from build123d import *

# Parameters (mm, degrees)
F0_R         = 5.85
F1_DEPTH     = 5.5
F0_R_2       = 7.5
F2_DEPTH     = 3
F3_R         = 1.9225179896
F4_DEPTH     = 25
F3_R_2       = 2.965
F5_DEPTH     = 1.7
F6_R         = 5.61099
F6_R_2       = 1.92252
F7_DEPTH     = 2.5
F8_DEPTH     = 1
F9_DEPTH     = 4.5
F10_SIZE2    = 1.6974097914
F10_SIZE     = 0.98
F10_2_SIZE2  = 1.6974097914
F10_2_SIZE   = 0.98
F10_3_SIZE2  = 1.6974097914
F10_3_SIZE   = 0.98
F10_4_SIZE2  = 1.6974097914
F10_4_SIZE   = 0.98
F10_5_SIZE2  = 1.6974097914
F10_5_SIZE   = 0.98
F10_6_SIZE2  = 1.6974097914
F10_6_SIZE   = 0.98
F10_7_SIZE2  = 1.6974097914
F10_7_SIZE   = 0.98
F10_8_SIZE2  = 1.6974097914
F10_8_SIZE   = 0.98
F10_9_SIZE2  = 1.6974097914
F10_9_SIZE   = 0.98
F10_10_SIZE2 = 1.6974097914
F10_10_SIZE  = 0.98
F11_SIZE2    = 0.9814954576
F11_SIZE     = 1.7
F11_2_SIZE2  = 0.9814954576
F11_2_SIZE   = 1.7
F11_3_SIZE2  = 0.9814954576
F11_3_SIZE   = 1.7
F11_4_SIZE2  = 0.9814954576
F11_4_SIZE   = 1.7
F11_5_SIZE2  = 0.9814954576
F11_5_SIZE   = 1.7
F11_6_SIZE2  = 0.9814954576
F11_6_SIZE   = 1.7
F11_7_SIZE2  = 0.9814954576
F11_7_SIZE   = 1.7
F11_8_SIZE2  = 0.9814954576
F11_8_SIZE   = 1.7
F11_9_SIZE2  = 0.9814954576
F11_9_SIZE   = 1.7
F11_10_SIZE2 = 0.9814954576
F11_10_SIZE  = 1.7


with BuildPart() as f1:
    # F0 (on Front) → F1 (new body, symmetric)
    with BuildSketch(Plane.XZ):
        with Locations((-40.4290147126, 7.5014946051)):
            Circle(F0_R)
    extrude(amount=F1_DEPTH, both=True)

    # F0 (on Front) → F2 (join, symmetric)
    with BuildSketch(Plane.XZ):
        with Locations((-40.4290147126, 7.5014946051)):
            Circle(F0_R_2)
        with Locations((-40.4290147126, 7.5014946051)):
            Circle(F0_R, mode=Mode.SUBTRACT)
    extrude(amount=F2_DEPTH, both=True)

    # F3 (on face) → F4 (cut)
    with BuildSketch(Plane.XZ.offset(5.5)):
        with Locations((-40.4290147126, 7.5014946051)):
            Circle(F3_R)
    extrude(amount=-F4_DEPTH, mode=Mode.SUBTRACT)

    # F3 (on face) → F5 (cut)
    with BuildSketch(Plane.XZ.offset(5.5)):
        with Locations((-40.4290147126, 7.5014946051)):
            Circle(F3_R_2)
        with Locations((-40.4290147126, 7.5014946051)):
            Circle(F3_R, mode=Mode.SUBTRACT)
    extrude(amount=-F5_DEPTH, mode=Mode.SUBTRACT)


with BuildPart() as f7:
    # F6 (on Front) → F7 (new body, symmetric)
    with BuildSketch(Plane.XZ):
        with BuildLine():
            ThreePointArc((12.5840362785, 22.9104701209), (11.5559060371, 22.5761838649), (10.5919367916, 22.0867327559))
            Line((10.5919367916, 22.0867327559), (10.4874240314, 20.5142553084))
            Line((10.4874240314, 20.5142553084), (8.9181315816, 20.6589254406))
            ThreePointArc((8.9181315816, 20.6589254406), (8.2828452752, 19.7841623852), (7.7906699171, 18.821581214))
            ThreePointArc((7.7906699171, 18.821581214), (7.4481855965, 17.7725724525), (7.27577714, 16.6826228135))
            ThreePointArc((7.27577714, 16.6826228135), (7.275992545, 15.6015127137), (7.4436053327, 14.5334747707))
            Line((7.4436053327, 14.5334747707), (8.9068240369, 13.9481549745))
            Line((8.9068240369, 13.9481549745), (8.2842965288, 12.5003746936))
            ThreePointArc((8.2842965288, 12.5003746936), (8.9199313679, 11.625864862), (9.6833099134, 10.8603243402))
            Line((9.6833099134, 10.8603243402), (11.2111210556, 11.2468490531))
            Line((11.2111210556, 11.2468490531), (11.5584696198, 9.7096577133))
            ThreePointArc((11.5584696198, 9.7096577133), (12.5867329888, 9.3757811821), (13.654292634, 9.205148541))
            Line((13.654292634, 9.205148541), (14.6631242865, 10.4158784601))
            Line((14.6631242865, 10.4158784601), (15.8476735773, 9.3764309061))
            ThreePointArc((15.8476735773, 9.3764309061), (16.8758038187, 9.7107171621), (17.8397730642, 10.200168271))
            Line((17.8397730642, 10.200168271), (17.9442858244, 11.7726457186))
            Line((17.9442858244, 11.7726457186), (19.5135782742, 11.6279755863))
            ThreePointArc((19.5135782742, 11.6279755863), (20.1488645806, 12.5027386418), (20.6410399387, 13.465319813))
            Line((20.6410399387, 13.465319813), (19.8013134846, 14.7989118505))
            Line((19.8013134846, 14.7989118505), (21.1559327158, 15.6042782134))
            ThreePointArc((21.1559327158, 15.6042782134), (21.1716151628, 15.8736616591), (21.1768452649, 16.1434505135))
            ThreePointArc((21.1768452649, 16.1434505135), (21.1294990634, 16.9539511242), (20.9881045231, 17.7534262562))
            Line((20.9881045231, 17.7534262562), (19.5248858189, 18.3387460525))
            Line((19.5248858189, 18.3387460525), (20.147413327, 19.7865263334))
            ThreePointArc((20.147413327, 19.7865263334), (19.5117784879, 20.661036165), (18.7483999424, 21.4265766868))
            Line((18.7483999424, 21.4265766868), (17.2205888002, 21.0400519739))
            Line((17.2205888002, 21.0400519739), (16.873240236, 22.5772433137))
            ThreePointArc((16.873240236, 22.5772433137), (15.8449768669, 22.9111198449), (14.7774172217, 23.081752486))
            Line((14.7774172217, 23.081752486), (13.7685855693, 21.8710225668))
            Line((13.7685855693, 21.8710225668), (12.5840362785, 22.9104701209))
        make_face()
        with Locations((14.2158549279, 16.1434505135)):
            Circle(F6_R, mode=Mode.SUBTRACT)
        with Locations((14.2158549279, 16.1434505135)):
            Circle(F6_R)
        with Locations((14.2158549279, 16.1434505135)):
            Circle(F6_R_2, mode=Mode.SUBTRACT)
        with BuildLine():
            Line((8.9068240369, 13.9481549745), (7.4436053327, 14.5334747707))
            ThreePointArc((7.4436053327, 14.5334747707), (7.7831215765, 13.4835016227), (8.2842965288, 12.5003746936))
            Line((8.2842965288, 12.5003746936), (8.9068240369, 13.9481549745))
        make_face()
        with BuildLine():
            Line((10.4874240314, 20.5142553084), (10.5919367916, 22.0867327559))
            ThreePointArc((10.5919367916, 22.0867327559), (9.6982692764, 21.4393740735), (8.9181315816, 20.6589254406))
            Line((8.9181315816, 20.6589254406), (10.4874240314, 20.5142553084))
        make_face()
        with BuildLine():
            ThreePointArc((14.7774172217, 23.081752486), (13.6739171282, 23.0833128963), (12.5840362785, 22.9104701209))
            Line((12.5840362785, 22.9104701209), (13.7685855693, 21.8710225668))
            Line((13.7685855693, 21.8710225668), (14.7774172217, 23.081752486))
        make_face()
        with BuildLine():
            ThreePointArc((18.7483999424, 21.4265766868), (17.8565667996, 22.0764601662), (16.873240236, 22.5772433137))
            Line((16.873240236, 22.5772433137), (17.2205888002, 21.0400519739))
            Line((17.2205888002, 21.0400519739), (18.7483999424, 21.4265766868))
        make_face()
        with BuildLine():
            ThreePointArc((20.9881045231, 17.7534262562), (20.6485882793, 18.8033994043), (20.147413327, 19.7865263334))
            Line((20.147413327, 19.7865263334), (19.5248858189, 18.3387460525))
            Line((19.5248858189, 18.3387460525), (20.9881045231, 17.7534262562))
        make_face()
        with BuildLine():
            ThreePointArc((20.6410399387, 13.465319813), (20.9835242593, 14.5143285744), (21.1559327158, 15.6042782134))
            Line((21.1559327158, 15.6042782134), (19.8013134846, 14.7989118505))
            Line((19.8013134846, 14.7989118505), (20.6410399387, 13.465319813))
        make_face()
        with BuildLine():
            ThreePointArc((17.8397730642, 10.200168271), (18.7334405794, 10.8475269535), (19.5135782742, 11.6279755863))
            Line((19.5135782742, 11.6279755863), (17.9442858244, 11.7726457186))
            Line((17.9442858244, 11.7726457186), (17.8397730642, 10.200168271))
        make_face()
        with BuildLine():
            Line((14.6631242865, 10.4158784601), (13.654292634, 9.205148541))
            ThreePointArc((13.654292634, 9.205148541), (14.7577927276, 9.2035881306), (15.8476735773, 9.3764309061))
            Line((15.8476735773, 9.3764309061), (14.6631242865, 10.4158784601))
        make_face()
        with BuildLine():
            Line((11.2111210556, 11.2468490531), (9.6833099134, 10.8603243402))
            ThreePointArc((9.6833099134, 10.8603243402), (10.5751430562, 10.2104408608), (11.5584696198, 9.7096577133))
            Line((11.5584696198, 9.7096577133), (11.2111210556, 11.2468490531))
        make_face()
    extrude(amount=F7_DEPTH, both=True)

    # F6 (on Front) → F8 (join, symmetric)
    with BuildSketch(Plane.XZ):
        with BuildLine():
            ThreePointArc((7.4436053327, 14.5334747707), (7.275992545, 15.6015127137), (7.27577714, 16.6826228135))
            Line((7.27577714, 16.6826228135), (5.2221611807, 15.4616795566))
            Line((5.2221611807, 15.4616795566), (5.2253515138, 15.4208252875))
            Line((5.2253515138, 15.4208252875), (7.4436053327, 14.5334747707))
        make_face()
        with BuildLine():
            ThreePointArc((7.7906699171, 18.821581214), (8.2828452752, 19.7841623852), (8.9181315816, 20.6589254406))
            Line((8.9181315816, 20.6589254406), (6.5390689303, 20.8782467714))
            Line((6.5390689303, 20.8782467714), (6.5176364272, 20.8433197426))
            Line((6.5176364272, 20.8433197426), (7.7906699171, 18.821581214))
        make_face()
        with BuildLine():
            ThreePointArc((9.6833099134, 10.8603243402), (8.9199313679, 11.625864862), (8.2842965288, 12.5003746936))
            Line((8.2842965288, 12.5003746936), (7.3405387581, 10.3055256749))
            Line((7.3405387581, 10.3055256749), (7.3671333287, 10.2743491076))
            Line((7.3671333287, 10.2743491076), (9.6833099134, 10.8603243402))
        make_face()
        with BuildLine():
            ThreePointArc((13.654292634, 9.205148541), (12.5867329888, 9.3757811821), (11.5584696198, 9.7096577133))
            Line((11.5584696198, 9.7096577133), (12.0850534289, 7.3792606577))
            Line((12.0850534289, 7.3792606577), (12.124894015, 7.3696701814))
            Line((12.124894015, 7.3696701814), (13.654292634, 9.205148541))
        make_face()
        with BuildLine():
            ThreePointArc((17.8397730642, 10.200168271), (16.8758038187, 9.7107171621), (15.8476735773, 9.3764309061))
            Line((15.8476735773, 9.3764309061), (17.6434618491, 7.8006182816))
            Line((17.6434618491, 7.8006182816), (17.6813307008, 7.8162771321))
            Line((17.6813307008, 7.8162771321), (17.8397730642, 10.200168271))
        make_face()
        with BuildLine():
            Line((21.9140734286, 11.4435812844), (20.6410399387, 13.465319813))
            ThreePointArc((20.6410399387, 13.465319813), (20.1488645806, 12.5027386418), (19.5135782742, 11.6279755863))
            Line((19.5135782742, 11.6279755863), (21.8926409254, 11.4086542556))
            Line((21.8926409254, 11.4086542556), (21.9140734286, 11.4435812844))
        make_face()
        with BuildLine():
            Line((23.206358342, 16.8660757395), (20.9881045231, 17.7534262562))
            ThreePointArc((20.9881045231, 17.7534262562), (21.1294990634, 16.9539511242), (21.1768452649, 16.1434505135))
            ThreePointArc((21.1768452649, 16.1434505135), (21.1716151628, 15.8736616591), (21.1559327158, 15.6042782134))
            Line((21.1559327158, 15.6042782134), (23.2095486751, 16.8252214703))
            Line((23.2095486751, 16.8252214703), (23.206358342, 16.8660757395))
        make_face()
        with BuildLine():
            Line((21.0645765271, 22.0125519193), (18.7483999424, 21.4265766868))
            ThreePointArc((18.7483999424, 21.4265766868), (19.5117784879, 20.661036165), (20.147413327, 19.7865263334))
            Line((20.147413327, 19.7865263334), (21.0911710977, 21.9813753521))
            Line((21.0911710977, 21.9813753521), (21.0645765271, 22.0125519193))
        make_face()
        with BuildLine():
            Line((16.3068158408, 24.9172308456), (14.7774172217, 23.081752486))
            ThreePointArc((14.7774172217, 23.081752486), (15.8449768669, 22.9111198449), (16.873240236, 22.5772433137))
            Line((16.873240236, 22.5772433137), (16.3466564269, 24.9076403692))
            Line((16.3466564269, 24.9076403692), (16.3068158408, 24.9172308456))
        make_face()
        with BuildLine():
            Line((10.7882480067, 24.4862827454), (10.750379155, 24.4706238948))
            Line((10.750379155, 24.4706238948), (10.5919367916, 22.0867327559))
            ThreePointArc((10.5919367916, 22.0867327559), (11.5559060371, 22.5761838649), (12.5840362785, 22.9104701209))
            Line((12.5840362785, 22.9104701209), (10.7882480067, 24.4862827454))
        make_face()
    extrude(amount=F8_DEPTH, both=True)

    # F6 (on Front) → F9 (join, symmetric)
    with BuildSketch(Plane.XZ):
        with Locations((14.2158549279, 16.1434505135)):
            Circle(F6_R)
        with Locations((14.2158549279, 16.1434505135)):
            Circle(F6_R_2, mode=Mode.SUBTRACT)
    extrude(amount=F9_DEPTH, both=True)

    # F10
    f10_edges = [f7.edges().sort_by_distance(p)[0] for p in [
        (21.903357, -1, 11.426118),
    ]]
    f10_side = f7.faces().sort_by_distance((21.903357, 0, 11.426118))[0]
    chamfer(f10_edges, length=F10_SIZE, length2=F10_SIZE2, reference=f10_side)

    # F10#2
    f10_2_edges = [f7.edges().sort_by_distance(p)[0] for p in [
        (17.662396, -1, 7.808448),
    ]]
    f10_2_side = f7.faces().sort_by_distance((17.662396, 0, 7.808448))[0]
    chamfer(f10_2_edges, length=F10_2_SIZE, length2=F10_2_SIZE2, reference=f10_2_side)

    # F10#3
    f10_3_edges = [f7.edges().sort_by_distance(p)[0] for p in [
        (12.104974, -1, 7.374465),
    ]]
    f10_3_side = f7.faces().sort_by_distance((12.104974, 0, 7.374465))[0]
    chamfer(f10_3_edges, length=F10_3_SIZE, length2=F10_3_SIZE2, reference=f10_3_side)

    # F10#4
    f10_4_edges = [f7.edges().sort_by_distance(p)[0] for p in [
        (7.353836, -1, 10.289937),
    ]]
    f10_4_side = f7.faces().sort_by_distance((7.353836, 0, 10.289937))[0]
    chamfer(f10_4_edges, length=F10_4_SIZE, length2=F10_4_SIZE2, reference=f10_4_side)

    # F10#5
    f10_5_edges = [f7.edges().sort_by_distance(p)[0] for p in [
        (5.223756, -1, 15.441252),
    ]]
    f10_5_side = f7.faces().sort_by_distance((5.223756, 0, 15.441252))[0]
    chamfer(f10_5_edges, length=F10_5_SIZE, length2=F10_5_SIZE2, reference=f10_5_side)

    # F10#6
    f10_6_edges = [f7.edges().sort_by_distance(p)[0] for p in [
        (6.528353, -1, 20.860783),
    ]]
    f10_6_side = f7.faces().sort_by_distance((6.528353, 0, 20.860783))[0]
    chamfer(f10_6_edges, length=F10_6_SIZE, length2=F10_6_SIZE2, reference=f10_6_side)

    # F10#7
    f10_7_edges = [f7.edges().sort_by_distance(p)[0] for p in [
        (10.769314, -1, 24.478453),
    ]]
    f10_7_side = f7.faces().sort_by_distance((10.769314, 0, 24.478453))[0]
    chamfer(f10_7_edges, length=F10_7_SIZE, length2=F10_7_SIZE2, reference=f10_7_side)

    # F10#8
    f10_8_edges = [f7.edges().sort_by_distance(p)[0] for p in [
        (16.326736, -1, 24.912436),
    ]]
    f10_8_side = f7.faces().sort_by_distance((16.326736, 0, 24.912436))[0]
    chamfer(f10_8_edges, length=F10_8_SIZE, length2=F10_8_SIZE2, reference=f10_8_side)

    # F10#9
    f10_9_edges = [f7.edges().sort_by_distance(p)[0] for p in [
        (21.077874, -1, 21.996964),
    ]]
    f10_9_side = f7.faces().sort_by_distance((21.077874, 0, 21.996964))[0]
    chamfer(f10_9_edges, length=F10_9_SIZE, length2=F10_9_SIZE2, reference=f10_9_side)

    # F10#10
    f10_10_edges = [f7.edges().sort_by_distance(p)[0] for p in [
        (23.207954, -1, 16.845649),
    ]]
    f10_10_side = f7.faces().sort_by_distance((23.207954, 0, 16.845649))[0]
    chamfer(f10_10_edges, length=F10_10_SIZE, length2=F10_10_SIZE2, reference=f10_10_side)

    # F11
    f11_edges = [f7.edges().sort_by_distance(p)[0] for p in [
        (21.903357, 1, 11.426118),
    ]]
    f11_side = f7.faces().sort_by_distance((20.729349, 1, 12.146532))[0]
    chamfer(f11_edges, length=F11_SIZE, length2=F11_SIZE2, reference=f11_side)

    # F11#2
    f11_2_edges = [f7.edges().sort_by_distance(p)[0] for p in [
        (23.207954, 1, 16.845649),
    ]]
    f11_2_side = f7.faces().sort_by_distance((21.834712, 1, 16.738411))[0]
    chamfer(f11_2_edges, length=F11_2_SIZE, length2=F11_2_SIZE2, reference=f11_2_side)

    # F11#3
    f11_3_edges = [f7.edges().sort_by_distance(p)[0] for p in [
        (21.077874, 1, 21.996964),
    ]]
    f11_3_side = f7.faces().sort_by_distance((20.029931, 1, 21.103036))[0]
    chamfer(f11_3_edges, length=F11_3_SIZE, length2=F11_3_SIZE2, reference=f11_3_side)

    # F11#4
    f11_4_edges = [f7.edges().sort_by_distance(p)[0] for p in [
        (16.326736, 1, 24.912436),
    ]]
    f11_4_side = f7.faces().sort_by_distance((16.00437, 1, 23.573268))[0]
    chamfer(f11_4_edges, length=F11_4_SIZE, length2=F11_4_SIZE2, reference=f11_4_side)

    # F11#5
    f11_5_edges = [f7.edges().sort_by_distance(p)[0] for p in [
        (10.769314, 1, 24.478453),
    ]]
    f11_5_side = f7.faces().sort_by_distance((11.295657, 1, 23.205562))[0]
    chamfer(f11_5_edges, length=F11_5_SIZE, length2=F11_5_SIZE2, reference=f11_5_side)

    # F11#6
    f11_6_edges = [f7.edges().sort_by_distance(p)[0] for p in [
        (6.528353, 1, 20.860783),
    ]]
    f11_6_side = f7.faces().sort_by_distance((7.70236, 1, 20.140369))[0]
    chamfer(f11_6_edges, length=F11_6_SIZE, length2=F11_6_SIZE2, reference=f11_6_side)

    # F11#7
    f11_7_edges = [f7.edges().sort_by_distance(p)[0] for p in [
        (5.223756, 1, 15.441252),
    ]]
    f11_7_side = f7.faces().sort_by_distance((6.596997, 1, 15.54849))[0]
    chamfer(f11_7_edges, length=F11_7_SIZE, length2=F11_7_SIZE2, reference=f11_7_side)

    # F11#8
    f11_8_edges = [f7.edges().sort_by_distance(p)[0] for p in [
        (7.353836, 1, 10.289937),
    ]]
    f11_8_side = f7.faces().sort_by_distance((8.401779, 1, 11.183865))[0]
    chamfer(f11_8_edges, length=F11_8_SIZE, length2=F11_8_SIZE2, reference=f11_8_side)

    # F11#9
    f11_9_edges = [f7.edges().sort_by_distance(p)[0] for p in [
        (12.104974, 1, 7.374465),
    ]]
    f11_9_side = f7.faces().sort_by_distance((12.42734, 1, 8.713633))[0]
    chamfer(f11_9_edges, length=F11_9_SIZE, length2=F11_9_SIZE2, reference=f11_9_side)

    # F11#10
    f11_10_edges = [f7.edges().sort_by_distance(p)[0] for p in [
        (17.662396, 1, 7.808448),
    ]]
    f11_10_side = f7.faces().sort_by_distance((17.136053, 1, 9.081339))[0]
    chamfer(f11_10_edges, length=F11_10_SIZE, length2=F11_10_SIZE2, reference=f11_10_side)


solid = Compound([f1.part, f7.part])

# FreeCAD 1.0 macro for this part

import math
import FreeCAD as App
import Part
import Sketcher

V = App.Vector


def edges_at(feature, points):
    """Names of the edges that pass closest to the given points."""
    edges = feature.Shape.Edges
    near = lambda p: min(range(len(edges)), key=lambda i: edges[i].distToShape(Part.Vertex(*p))[0])
    return sorted({f"Edge{near(p) + 1}" for p in points})

doc = App.newDocument("Part")
body = doc.addObject("PartDesign::Body", "Body")

sketch1 = body.newObject("Sketcher::SketchObject", "Sketch")
sketch1.AttachmentSupport = (doc.getObject("XZ_Plane"), [""])
sketch1.MapMode = "FlatFace"
sketch1.addGeometry(Part.Circle(V(-40, 8, 0), V(0, 0, 1), 6), False)
sketch1.addConstraint([
    Sketcher.Constraint("Diameter", 0, 11.7),
    Sketcher.Constraint("DistanceX", 0, 3, -1, 1, 40.429015),
    Sketcher.Constraint("DistanceY", -1, 1, 0, 3, 7.501495),
])
pad1 = body.newObject("PartDesign::Pad", "Pad")
pad1.Profile = sketch1
pad1.Length = 11
pad1.Midplane = True

sketch2 = body.newObject("Sketcher::SketchObject", "Sketch001")
sketch2.AttachmentSupport = (doc.getObject("XZ_Plane"), [""])
sketch2.MapMode = "FlatFace"
sketch2.addGeometry([
    Part.Circle(V(-40, 8, 0), V(0, 0, 1), 8),
    Part.Circle(V(-40, 8, 0), V(0, 0, 1), 6),
], False)
sketch2.addConstraint([
    Sketcher.Constraint("Coincident", 1, 3, 0, 3),
    Sketcher.Constraint("Diameter", 0, 15.0),
    Sketcher.Constraint("Diameter", 1, 11.7),
    Sketcher.Constraint("DistanceX", 0, 3, -1, 1, 40.429015),
    Sketcher.Constraint("DistanceY", -1, 1, 0, 3, 7.501495),
])
pad2 = body.newObject("PartDesign::Pad", "Pad001")
pad2.Profile = sketch2
pad2.Length = 6
pad2.Midplane = True

sketch3 = body.newObject("Sketcher::SketchObject", "Sketch002")
sketch3.AttachmentSupport = (doc.getObject("XZ_Plane"), [""])
sketch3.MapMode = "FlatFace"
sketch3.AttachmentOffset = App.Placement(V(0, 0, 5.5), App.Rotation())
sketch3.addGeometry(Part.Circle(V(-40.4, 7.5, 0), V(0, 0, 1), 1.9), False)
sketch3.addConstraint([
    Sketcher.Constraint("Diameter", 0, 3.845036),
    Sketcher.Constraint("DistanceX", 0, 3, -1, 1, 40.429015),
    Sketcher.Constraint("DistanceY", -1, 1, 0, 3, 7.501495),
])
pocket1 = body.newObject("PartDesign::Pocket", "Pocket")
pocket1.Profile = sketch3
pocket1.Length = 25

sketch4 = body.newObject("Sketcher::SketchObject", "Sketch003")
sketch4.AttachmentSupport = (doc.getObject("XZ_Plane"), [""])
sketch4.MapMode = "FlatFace"
sketch4.AttachmentOffset = App.Placement(V(0, 0, 5.5), App.Rotation())
sketch4.addGeometry([
    Part.Circle(V(-40.4, 7.5, 0), V(0, 0, 1), 3),
    Part.Circle(V(-40.4, 7.5, 0), V(0, 0, 1), 1.9),
], False)
sketch4.addConstraint([
    Sketcher.Constraint("Coincident", 1, 3, 0, 3),
    Sketcher.Constraint("Diameter", 0, 5.93),
    Sketcher.Constraint("Diameter", 1, 3.845036),
    Sketcher.Constraint("DistanceX", 0, 3, -1, 1, 40.429015),
    Sketcher.Constraint("DistanceY", -1, 1, 0, 3, 7.501495),
])
pocket2 = body.newObject("PartDesign::Pocket", "Pocket001")
pocket2.Profile = sketch4
pocket2.Length = 1.7
body2 = doc.addObject("PartDesign::Body", "Body001")

sketch5 = body2.newObject("Sketcher::SketchObject", "Sketch004")
sketch5.AttachmentSupport = (doc.getObject("XZ_Plane001"), [""])
sketch5.MapMode = "FlatFace"
sketch5.addGeometry([
    Part.ArcOfCircle(Part.Circle(V(14.2, 16.1, 0), V(0, 0, 1), 7), math.radians(103.56), math.radians(121.37)),
    Part.ArcOfCircle(Part.Circle(V(14.2, 16.1, 0), V(0, 0, 1), 7), math.radians(121.37), math.radians(139.56)),
    Part.ArcOfCircle(Part.Circle(V(14.2, 16.1, 0), V(0, 0, 1), 7), math.radians(139.56), math.radians(157.37)),
    Part.ArcOfCircle(Part.Circle(V(14.2, 16.1, 0), V(0, 0, 1), 7), math.radians(157.37), math.radians(175.56)),
    Part.ArcOfCircle(Part.Circle(V(14.2, 16.1, 0), V(0, 0, 1), 7), math.radians(175.56), math.radians(193.37)),
    Part.ArcOfCircle(Part.Circle(V(14.2, 16.1, 0), V(0, 0, 1), 7), math.radians(-166.63), math.radians(-148.44)),
    Part.ArcOfCircle(Part.Circle(V(14.2, 16.1, 0), V(0, 0, 1), 7), math.radians(-148.44), math.radians(-130.63)),
    Part.ArcOfCircle(Part.Circle(V(14.2, 16.1, 0), V(0, 0, 1), 7), math.radians(-130.63), math.radians(-112.44)),
    Part.ArcOfCircle(Part.Circle(V(14.2, 16.1, 0), V(0, 0, 1), 7), math.radians(-112.44), math.radians(-94.63)),
    Part.ArcOfCircle(Part.Circle(V(14.2, 16.1, 0), V(0, 0, 1), 7), math.radians(-94.63), math.radians(-76.44)),
    Part.ArcOfCircle(Part.Circle(V(14.2, 16.1, 0), V(0, 0, 1), 7), math.radians(-76.44), math.radians(-58.63)),
    Part.ArcOfCircle(Part.Circle(V(14.2, 16.1, 0), V(0, 0, 1), 7), math.radians(-58.63), math.radians(-40.44)),
    Part.ArcOfCircle(Part.Circle(V(14.2, 16.1, 0), V(0, 0, 1), 7), math.radians(-40.44), math.radians(-22.63)),
    Part.ArcOfCircle(Part.Circle(V(14.2, 16.1, 0), V(0, 0, 1), 7), math.radians(-22.63), math.radians(-4.44)),
    Part.ArcOfCircle(Part.Circle(V(14.2, 16.1, 0), V(0, 0, 1), 7), math.radians(-4.44), math.radians(0)),
    Part.ArcOfCircle(Part.Circle(V(14.2, 16.1, 0), V(0, 0, 1), 7), math.radians(0), math.radians(13.37)),
    Part.ArcOfCircle(Part.Circle(V(14.2, 16.1, 0), V(0, 0, 1), 7), math.radians(13.37), math.radians(31.56)),
    Part.ArcOfCircle(Part.Circle(V(14.2, 16.1, 0), V(0, 0, 1), 7), math.radians(31.56), math.radians(49.37)),
    Part.ArcOfCircle(Part.Circle(V(14.2, 16.1, 0), V(0, 0, 1), 7), math.radians(49.37), math.radians(67.56)),
    Part.ArcOfCircle(Part.Circle(V(14.2, 16.1, 0), V(0, 0, 1), 7), math.radians(67.56), math.radians(85.37)),
    Part.ArcOfCircle(Part.Circle(V(14.2, 16.1, 0), V(0, 0, 1), 7), math.radians(85.37), math.radians(103.56)),
    Part.Circle(V(14.2, 16.1, 0), V(0, 0, 1), 1.9),
], False)
sketch5.addConstraint([
    Sketcher.Constraint("Tangent", 0, 2, 1, 1),
    Sketcher.Constraint("Tangent", 1, 2, 2, 1),
    Sketcher.Constraint("Tangent", 2, 2, 3, 1),
    Sketcher.Constraint("Tangent", 3, 2, 4, 1),
    Sketcher.Constraint("Tangent", 4, 2, 5, 1),
    Sketcher.Constraint("Tangent", 5, 2, 6, 1),
    Sketcher.Constraint("Tangent", 6, 2, 7, 1),
    Sketcher.Constraint("Tangent", 7, 2, 8, 1),
    Sketcher.Constraint("Tangent", 8, 2, 9, 1),
    Sketcher.Constraint("Tangent", 9, 2, 10, 1),
    Sketcher.Constraint("Tangent", 10, 2, 11, 1),
    Sketcher.Constraint("Tangent", 11, 2, 12, 1),
    Sketcher.Constraint("Tangent", 12, 2, 13, 1),
    Sketcher.Constraint("Tangent", 13, 2, 14, 1),
    Sketcher.Constraint("Tangent", 14, 2, 15, 1),
    Sketcher.Constraint("Tangent", 15, 2, 16, 1),
    Sketcher.Constraint("Tangent", 16, 2, 17, 1),
    Sketcher.Constraint("Tangent", 17, 2, 18, 1),
    Sketcher.Constraint("Tangent", 18, 2, 19, 1),
    Sketcher.Constraint("Tangent", 19, 2, 20, 1),
    Sketcher.Constraint("Tangent", 20, 2, 0, 1),
    Sketcher.Constraint("Coincident", 2, 3, 0, 3),
    Sketcher.Constraint("Coincident", 4, 3, 0, 3),
    Sketcher.Constraint("Coincident", 6, 3, 0, 3),
    Sketcher.Constraint("Coincident", 8, 3, 0, 3),
    Sketcher.Constraint("Coincident", 10, 3, 0, 3),
    Sketcher.Constraint("Coincident", 12, 3, 0, 3),
    Sketcher.Constraint("Coincident", 14, 3, 0, 3),
    Sketcher.Constraint("Coincident", 16, 3, 0, 3),
    Sketcher.Constraint("Coincident", 18, 3, 0, 3),
    Sketcher.Constraint("Coincident", 21, 3, 0, 3),
    Sketcher.Constraint("Horizontal", 21, 3, 14, 2),
    Sketcher.Constraint("Diameter", 21, 3.84504),
    Sketcher.Constraint("Radius", 0, 6.96099),
    Sketcher.Constraint("DistanceX", -1, 1, 17, 2, 18.7484),
    Sketcher.Constraint("DistanceY", 5, 2, 4, 2, 2.0331),
    Sketcher.Constraint("DistanceY", 6, 2, 3, 2, 5.822298),
    Sketcher.Constraint("DistanceY", 8, 2, 9, 3, 6.938302),
    Sketcher.Constraint("DistanceX", 9, 2, 10, 2, 1.992099),
    Sketcher.Constraint("DistanceY", 15, 2, 16, 2, 2.0331),
    Sketcher.Constraint("DistanceY", 13, 2, 17, 2, 5.822298),
    Sketcher.Constraint("DistanceX", 0, 2, 20, 2, 1.992099),
    Sketcher.Constraint("DistanceY", -1, 1, 0, 3, 16.143451),
    Sketcher.Constraint("DistanceX", -1, 1, 1, 2, 8.918132),
    Sketcher.Constraint("DistanceX", -1, 1, 2, 2, 7.79067),
    Sketcher.Constraint("DistanceY", -1, 1, 2, 2, 18.821581),
    Sketcher.Constraint("DistanceX", -1, 1, 6, 2, 9.68331),
    Sketcher.Constraint("DistanceX", -1, 1, 7, 2, 11.55847),
    Sketcher.Constraint("DistanceY", -1, 1, 9, 2, 9.376431),
    Sketcher.Constraint("DistanceX", -1, 1, 11, 2, 19.513578),
    Sketcher.Constraint("DistanceX", -1, 1, 12, 2, 20.64104),
    Sketcher.Constraint("DistanceX", -1, 1, 18, 2, 16.87324),
    Sketcher.Constraint("DistanceY", -1, 1, 20, 2, 22.91047),
    Sketcher.Constraint("DistanceX", 3, 2, 4, 2, 0.167828),
    Sketcher.Constraint("DistanceX", 15, 2, 14, 2, 0.188741),
    Sketcher.Constraint("DistanceY", 18, 2, 19, 2, 0.504509),
])
pad3 = body2.newObject("PartDesign::Pad", "Pad002")
pad3.Profile = sketch5
pad3.Length = 5
pad3.Midplane = True

sketch6 = body2.newObject("Sketcher::SketchObject", "Sketch005")
sketch6.AttachmentSupport = (doc.getObject("XZ_Plane001"), [""])
sketch6.MapMode = "FlatFace"
sketch6.addGeometry([
    Part.ArcOfCircle(Part.Circle(V(14.216, 16.143, 0), V(0, 0, 1), 6.961), math.radians(175.56), math.radians(193.37)),
    Part.LineSegment(V(7.276, 16.683, 0), V(5.222, 15.462, 0)),
    Part.LineSegment(V(5.222, 15.462, 0), V(5.225, 15.421, 0)),
    Part.LineSegment(V(5.225, 15.421, 0), V(7.444, 14.533, 0)),
    Part.ArcOfCircle(Part.Circle(V(14.216, 16.143, 0), V(0, 0, 1), 6.961), math.radians(139.56), math.radians(157.37)),
    Part.LineSegment(V(8.918, 20.659, 0), V(6.539, 20.878, 0)),
    Part.LineSegment(V(6.539, 20.878, 0), V(6.518, 20.843, 0)),
    Part.LineSegment(V(6.518, 20.843, 0), V(7.791, 18.822, 0)),
    Part.ArcOfCircle(Part.Circle(V(14.216, 16.143, 0), V(0, 0, 1), 6.961), math.radians(-148.44), math.radians(-130.63)),
    Part.LineSegment(V(8.284, 12.5, 0), V(7.341, 10.306, 0)),
    Part.LineSegment(V(7.341, 10.306, 0), V(7.367, 10.274, 0)),
    Part.LineSegment(V(7.367, 10.274, 0), V(9.683, 10.86, 0)),
    Part.ArcOfCircle(Part.Circle(V(14.216, 16.143, 0), V(0, 0, 1), 6.961), math.radians(-112.44), math.radians(-94.63)),
    Part.LineSegment(V(11.558, 9.71, 0), V(12.085, 7.379, 0)),
    Part.LineSegment(V(12.085, 7.379, 0), V(12.125, 7.37, 0)),
    Part.LineSegment(V(12.125, 7.37, 0), V(13.654, 9.205, 0)),
    Part.ArcOfCircle(Part.Circle(V(14.216, 16.143, 0), V(0, 0, 1), 6.961), math.radians(-76.44), math.radians(-58.63)),
    Part.LineSegment(V(15.848, 9.376, 0), V(17.643, 7.801, 0)),
    Part.LineSegment(V(17.643, 7.801, 0), V(17.681, 7.816, 0)),
    Part.LineSegment(V(17.681, 7.816, 0), V(17.84, 10.2, 0)),
    Part.LineSegment(V(21.914, 11.444, 0), V(20.641, 13.465, 0)),
    Part.ArcOfCircle(Part.Circle(V(14.216, 16.143, 0), V(0, 0, 1), 6.961), math.radians(-40.44), math.radians(-22.63)),
    Part.LineSegment(V(19.514, 11.628, 0), V(21.893, 11.409, 0)),
    Part.LineSegment(V(21.893, 11.409, 0), V(21.914, 11.444, 0)),
    Part.LineSegment(V(23.206, 16.866, 0), V(20.988, 17.753, 0)),
    Part.ArcOfCircle(Part.Circle(V(14.216, 16.143, 0), V(0, 0, 1), 6.961), math.radians(0), math.radians(13.37)),
    Part.ArcOfCircle(Part.Circle(V(14.216, 16.143, 0), V(0, 0, 1), 6.961), math.radians(-4.44), math.radians(0)),
    Part.LineSegment(V(21.156, 15.604, 0), V(23.21, 16.825, 0)),
    Part.LineSegment(V(23.21, 16.825, 0), V(23.206, 16.866, 0)),
    Part.LineSegment(V(21.065, 22.013, 0), V(18.748, 21.427, 0)),
    Part.ArcOfCircle(Part.Circle(V(14.216, 16.143, 0), V(0, 0, 1), 6.961), math.radians(31.56), math.radians(49.37)),
    Part.LineSegment(V(20.147, 19.787, 0), V(21.091, 21.981, 0)),
    Part.LineSegment(V(21.091, 21.981, 0), V(21.065, 22.013, 0)),
    Part.LineSegment(V(16.307, 24.917, 0), V(14.777, 23.082, 0)),
    Part.ArcOfCircle(Part.Circle(V(14.216, 16.143, 0), V(0, 0, 1), 6.961), math.radians(67.56), math.radians(85.37)),
    Part.LineSegment(V(16.873, 22.577, 0), V(16.347, 24.908, 0)),
    Part.LineSegment(V(16.347, 24.908, 0), V(16.307, 24.917, 0)),
    Part.LineSegment(V(10.788, 24.486, 0), V(10.75, 24.471, 0)),
    Part.LineSegment(V(10.75, 24.471, 0), V(10.592, 22.087, 0)),
    Part.ArcOfCircle(Part.Circle(V(14.216, 16.143, 0), V(0, 0, 1), 6.961), math.radians(103.56), math.radians(121.37)),
    Part.LineSegment(V(12.584, 22.91, 0), V(10.788, 24.486, 0)),
], False)
sketch6.addConstraint([
    Sketcher.Constraint("Coincident", 0, 1, 1, 1),
    Sketcher.Constraint("Coincident", 1, 2, 2, 1),
    Sketcher.Constraint("Coincident", 2, 2, 3, 1),
    Sketcher.Constraint("Coincident", 3, 2, 0, 2),
    Sketcher.Constraint("Coincident", 4, 1, 5, 1),
    Sketcher.Constraint("Coincident", 5, 2, 6, 1),
    Sketcher.Constraint("Coincident", 6, 2, 7, 1),
    Sketcher.Constraint("Coincident", 7, 2, 4, 2),
    Sketcher.Constraint("Coincident", 8, 1, 9, 1),
    Sketcher.Constraint("Coincident", 9, 2, 10, 1),
    Sketcher.Constraint("Coincident", 10, 2, 11, 1),
    Sketcher.Constraint("Coincident", 11, 2, 8, 2),
    Sketcher.Constraint("Coincident", 12, 1, 13, 1),
    Sketcher.Constraint("Coincident", 13, 2, 14, 1),
    Sketcher.Constraint("Coincident", 14, 2, 15, 1),
    Sketcher.Constraint("Coincident", 15, 2, 12, 2),
    Sketcher.Constraint("Coincident", 16, 1, 17, 1),
    Sketcher.Constraint("Coincident", 17, 2, 18, 1),
    Sketcher.Constraint("Coincident", 18, 2, 19, 1),
    Sketcher.Constraint("Coincident", 19, 2, 16, 2),
    Sketcher.Constraint("Coincident", 20, 2, 21, 2),
    Sketcher.Constraint("Coincident", 21, 1, 22, 1),
    Sketcher.Constraint("Coincident", 22, 2, 23, 1),
    Sketcher.Constraint("Coincident", 23, 2, 20, 1),
    Sketcher.Constraint("Coincident", 24, 2, 25, 2),
    Sketcher.Constraint("Tangent", 25, 1, 26, 2),
    Sketcher.Constraint("Coincident", 26, 1, 27, 1),
    Sketcher.Constraint("Coincident", 27, 2, 28, 1),
    Sketcher.Constraint("Coincident", 28, 2, 24, 1),
    Sketcher.Constraint("Coincident", 29, 2, 30, 2),
    Sketcher.Constraint("Coincident", 30, 1, 31, 1),
    Sketcher.Constraint("Coincident", 31, 2, 32, 1),
    Sketcher.Constraint("Coincident", 32, 2, 29, 1),
    Sketcher.Constraint("Coincident", 33, 2, 34, 2),
    Sketcher.Constraint("Coincident", 34, 1, 35, 1),
    Sketcher.Constraint("Coincident", 35, 2, 36, 1),
    Sketcher.Constraint("Coincident", 36, 2, 33, 1),
    Sketcher.Constraint("Coincident", 37, 2, 38, 1),
    Sketcher.Constraint("Coincident", 38, 2, 39, 2),
    Sketcher.Constraint("Coincident", 39, 1, 40, 1),
    Sketcher.Constraint("Coincident", 40, 2, 37, 1),
    Sketcher.Constraint("Coincident", 4, 3, 0, 3),
    Sketcher.Constraint("Coincident", 8, 3, 0, 3),
    Sketcher.Constraint("Coincident", 12, 3, 0, 3),
    Sketcher.Constraint("Coincident", 16, 3, 0, 3),
    Sketcher.Constraint("Coincident", 21, 3, 0, 3),
    Sketcher.Constraint("Coincident", 25, 3, 0, 3),
    Sketcher.Constraint("Coincident", 30, 3, 0, 3),
    Sketcher.Constraint("Coincident", 34, 3, 0, 3),
    Sketcher.Constraint("Coincident", 39, 3, 0, 3),
    Sketcher.Constraint("Equal", 0, 4),
    Sketcher.Constraint("Equal", 4, 8),
    Sketcher.Constraint("Equal", 8, 12),
    Sketcher.Constraint("Equal", 12, 16),
    Sketcher.Constraint("Equal", 16, 21),
    Sketcher.Constraint("Equal", 21, 25),
    Sketcher.Constraint("Equal", 25, 26),
    Sketcher.Constraint("Equal", 26, 30),
    Sketcher.Constraint("Equal", 30, 34),
    Sketcher.Constraint("Equal", 34, 39),
    Sketcher.Constraint("Parallel", 7, 20),
    Sketcher.Constraint("Parallel", 5, 22),
    Sketcher.Constraint("Parallel", 6, 23),
    Sketcher.Constraint("Parallel", 3, 24),
    Sketcher.Constraint("Parallel", 1, 27),
    Sketcher.Constraint("Parallel", 2, 28),
    Sketcher.Constraint("Parallel", 11, 29),
    Sketcher.Constraint("Parallel", 9, 31),
    Sketcher.Constraint("Parallel", 10, 32),
    Sketcher.Constraint("Parallel", 15, 33),
    Sketcher.Constraint("Parallel", 13, 35),
    Sketcher.Constraint("Parallel", 14, 36),
    Sketcher.Constraint("Parallel", 18, 37),
    Sketcher.Constraint("Parallel", 19, 38),
    Sketcher.Constraint("Parallel", 17, 40),
    Sketcher.Constraint("Horizontal", 39, 3, 25, 1),
    Sketcher.Constraint("Equal", 1, 3),
    Sketcher.Constraint("Equal", 3, 5),
    Sketcher.Constraint("Equal", 2, 6),
    Sketcher.Constraint("Equal", 5, 7),
    Sketcher.Constraint("Equal", 7, 9),
    Sketcher.Constraint("Equal", 6, 10),
    Sketcher.Constraint("Equal", 9, 11),
    Sketcher.Constraint("Equal", 11, 13),
    Sketcher.Constraint("Equal", 10, 14),
    Sketcher.Constraint("Equal", 13, 15),
    Sketcher.Constraint("Equal", 15, 17),
    Sketcher.Constraint("Equal", 14, 18),
    Sketcher.Constraint("Equal", 17, 19),
    Sketcher.Constraint("Equal", 19, 20),
    Sketcher.Constraint("Equal", 20, 22),
    Sketcher.Constraint("Equal", 18, 23),
    Sketcher.Constraint("Equal", 22, 24),
    Sketcher.Constraint("Equal", 24, 27),
    Sketcher.Constraint("Equal", 23, 28),
    Sketcher.Constraint("Equal", 27, 29),
    Sketcher.Constraint("Equal", 29, 31),
    Sketcher.Constraint("Equal", 28, 32),
    Sketcher.Constraint("Equal", 31, 33),
    Sketcher.Constraint("Equal", 33, 35),
    Sketcher.Constraint("Equal", 32, 36),
    Sketcher.Constraint("Equal", 36, 37),
    Sketcher.Constraint("Equal", 35, 38),
    Sketcher.Constraint("Equal", 38, 40),
    Sketcher.Constraint("Radius", 0, 6.96099),
    Sketcher.Constraint("DistanceX", -1, 1, 29, 2, 18.7484),
    Sketcher.Constraint("DistanceY", 2, 2, 4, 1, 5.2381),
    Sketcher.Constraint("DistanceX", 5, 2, 7, 2, 1.251601),
    Sketcher.Constraint("DistanceY", 1, 2, 7, 2, 3.359902),
    Sketcher.Constraint("DistanceY", 8, 1, 3, 2, 2.0331),
    Sketcher.Constraint("DistanceY", 9, 2, 2, 2, 5.1153),
    Sketcher.Constraint("DistanceY", 9, 2, 11, 2, 0.554799),
    Sketcher.Constraint("DistanceY", 11, 2, 0, 1, 5.822298),
    Sketcher.Constraint("DistanceX", 14, 2, 15, 2, 1.529399),
    Sketcher.Constraint("DistanceX", 16, 1, 19, 2, 1.992099),
    Sketcher.Constraint("DistanceY", 17, 2, 20, 2, 5.664702),
    Sketcher.Constraint("DistanceY", 18, 2, 21, 1, 3.811698),
    Sketcher.Constraint("DistanceX", 19, 2, 23, 2, 4.0743),
    Sketcher.Constraint("DistanceY", 32, 2, 33, 2, 1.069201),
    Sketcher.Constraint("Distance", 1, 2.389151),
    Sketcher.Constraint("Distance", 2, 0.040979),
    Sketcher.Constraint("DistanceY", -1, 1, 0, 3, 16.143451),
    Sketcher.Constraint("DistanceX", -1, 1, 2, 2, 5.225352),
    Sketcher.Constraint("DistanceX", -1, 1, 12, 1, 11.55847),
])
pad4 = body2.newObject("PartDesign::Pad", "Pad003")
pad4.Profile = sketch6
pad4.Length = 2
pad4.Midplane = True

sketch7 = body2.newObject("Sketcher::SketchObject", "Sketch006")
sketch7.AttachmentSupport = (doc.getObject("XZ_Plane001"), [""])
sketch7.MapMode = "FlatFace"
sketch7.addGeometry([
    Part.Circle(V(14.2, 16.1, 0), V(0, 0, 1), 5.6),
    Part.Circle(V(14.2, 16.1, 0), V(0, 0, 1), 1.9),
], False)
sketch7.addConstraint([
    Sketcher.Constraint("Coincident", 1, 3, 0, 3),
    Sketcher.Constraint("Diameter", 0, 11.22198),
    Sketcher.Constraint("Diameter", 1, 3.84504),
    Sketcher.Constraint("DistanceY", -1, 1, 0, 3, 16.143451),
    Sketcher.Constraint("DistanceX", -1, 1, 0, 3, 14.215855),
])
pad5 = body2.newObject("PartDesign::Pad", "Pad004")
pad5.Profile = sketch7
pad5.Length = 9
pad5.Midplane = True
doc.recompute()

chamfer = body2.newObject("PartDesign::Chamfer", "Chamfer")
chamfer.Base = (pad5, edges_at(pad5, [(21.903, -1, 11.426)]))
chamfer.ChamferType = "Two distances"
chamfer.Size = 0.98
chamfer.Size2 = 1.69741
chamfer.FlipDirection = True
doc.recompute()

chamfer2 = body2.newObject("PartDesign::Chamfer", "Chamfer001")
chamfer2.Base = (chamfer, edges_at(chamfer, [(17.662, -1, 7.808)]))
chamfer2.ChamferType = "Two distances"
chamfer2.Size = 0.98
chamfer2.Size2 = 1.69741
chamfer2.FlipDirection = True
doc.recompute()

chamfer3 = body2.newObject("PartDesign::Chamfer", "Chamfer002")
chamfer3.Base = (chamfer2, edges_at(chamfer2, [(12.105, -1, 7.374)]))
chamfer3.ChamferType = "Two distances"
chamfer3.Size = 0.98
chamfer3.Size2 = 1.69741
chamfer3.FlipDirection = True
doc.recompute()

chamfer4 = body2.newObject("PartDesign::Chamfer", "Chamfer003")
chamfer4.Base = (chamfer3, edges_at(chamfer3, [(7.354, -1, 10.29)]))
chamfer4.ChamferType = "Two distances"
chamfer4.Size = 0.98
chamfer4.Size2 = 1.69741
chamfer4.FlipDirection = True
doc.recompute()

chamfer5 = body2.newObject("PartDesign::Chamfer", "Chamfer004")
chamfer5.Base = (chamfer4, edges_at(chamfer4, [(5.224, -1, 15.441)]))
chamfer5.ChamferType = "Two distances"
chamfer5.Size = 0.98
chamfer5.Size2 = 1.69741
chamfer5.FlipDirection = True
doc.recompute()

chamfer6 = body2.newObject("PartDesign::Chamfer", "Chamfer005")
chamfer6.Base = (chamfer5, edges_at(chamfer5, [(6.528, -1, 20.861)]))
chamfer6.ChamferType = "Two distances"
chamfer6.Size = 0.98
chamfer6.Size2 = 1.69741
chamfer6.FlipDirection = True
doc.recompute()

chamfer7 = body2.newObject("PartDesign::Chamfer", "Chamfer006")
chamfer7.Base = (chamfer6, edges_at(chamfer6, [(10.769, -1, 24.478)]))
chamfer7.ChamferType = "Two distances"
chamfer7.Size = 0.98
chamfer7.Size2 = 1.69741
chamfer7.FlipDirection = True
doc.recompute()

chamfer8 = body2.newObject("PartDesign::Chamfer", "Chamfer007")
chamfer8.Base = (chamfer7, edges_at(chamfer7, [(16.327, -1, 24.912)]))
chamfer8.ChamferType = "Two distances"
chamfer8.Size = 0.98
chamfer8.Size2 = 1.69741
chamfer8.FlipDirection = True
doc.recompute()

chamfer9 = body2.newObject("PartDesign::Chamfer", "Chamfer008")
chamfer9.Base = (chamfer8, edges_at(chamfer8, [(21.078, -1, 21.997)]))
chamfer9.ChamferType = "Two distances"
chamfer9.Size = 0.98
chamfer9.Size2 = 1.69741
chamfer9.FlipDirection = True
doc.recompute()

chamfer10 = body2.newObject("PartDesign::Chamfer", "Chamfer009")
chamfer10.Base = (chamfer9, edges_at(chamfer9, [(23.208, -1, 16.846)]))
chamfer10.ChamferType = "Two distances"
chamfer10.Size = 0.98
chamfer10.Size2 = 1.69741
chamfer10.FlipDirection = True
doc.recompute()

chamfer11 = body2.newObject("PartDesign::Chamfer", "Chamfer010")
chamfer11.Base = (chamfer10, edges_at(chamfer10, [(21.903, 1, 11.426)]))
chamfer11.ChamferType = "Two distances"
chamfer11.Size = 1.7
chamfer11.Size2 = 0.981495
doc.recompute()

chamfer12 = body2.newObject("PartDesign::Chamfer", "Chamfer011")
chamfer12.Base = (chamfer11, edges_at(chamfer11, [(23.208, 1, 16.846)]))
chamfer12.ChamferType = "Two distances"
chamfer12.Size = 1.7
chamfer12.Size2 = 0.981495
doc.recompute()

chamfer13 = body2.newObject("PartDesign::Chamfer", "Chamfer012")
chamfer13.Base = (chamfer12, edges_at(chamfer12, [(21.078, 1, 21.997)]))
chamfer13.ChamferType = "Two distances"
chamfer13.Size = 1.7
chamfer13.Size2 = 0.981495
doc.recompute()

chamfer14 = body2.newObject("PartDesign::Chamfer", "Chamfer013")
chamfer14.Base = (chamfer13, edges_at(chamfer13, [(16.327, 1, 24.912)]))
chamfer14.ChamferType = "Two distances"
chamfer14.Size = 1.7
chamfer14.Size2 = 0.981495
doc.recompute()

chamfer15 = body2.newObject("PartDesign::Chamfer", "Chamfer014")
chamfer15.Base = (chamfer14, edges_at(chamfer14, [(10.769, 1, 24.478)]))
chamfer15.ChamferType = "Two distances"
chamfer15.Size = 1.7
chamfer15.Size2 = 0.981495
doc.recompute()

chamfer16 = body2.newObject("PartDesign::Chamfer", "Chamfer015")
chamfer16.Base = (chamfer15, edges_at(chamfer15, [(6.528, 1, 20.861)]))
chamfer16.ChamferType = "Two distances"
chamfer16.Size = 1.7
chamfer16.Size2 = 0.981495
doc.recompute()

chamfer17 = body2.newObject("PartDesign::Chamfer", "Chamfer016")
chamfer17.Base = (chamfer16, edges_at(chamfer16, [(5.224, 1, 15.441)]))
chamfer17.ChamferType = "Two distances"
chamfer17.Size = 1.7
chamfer17.Size2 = 0.981495
doc.recompute()

chamfer18 = body2.newObject("PartDesign::Chamfer", "Chamfer017")
chamfer18.Base = (chamfer17, edges_at(chamfer17, [(7.354, 1, 10.29)]))
chamfer18.ChamferType = "Two distances"
chamfer18.Size = 1.7
chamfer18.Size2 = 0.981495
doc.recompute()

chamfer19 = body2.newObject("PartDesign::Chamfer", "Chamfer018")
chamfer19.Base = (chamfer18, edges_at(chamfer18, [(12.105, 1, 7.374)]))
chamfer19.ChamferType = "Two distances"
chamfer19.Size = 1.7
chamfer19.Size2 = 0.981495
doc.recompute()

chamfer20 = body2.newObject("PartDesign::Chamfer", "Chamfer019")
chamfer20.Base = (chamfer19, edges_at(chamfer19, [(17.662, 1, 7.808)]))
chamfer20.ChamferType = "Two distances"
chamfer20.Size = 1.7
chamfer20.Size2 = 0.981495

doc.recompute()
